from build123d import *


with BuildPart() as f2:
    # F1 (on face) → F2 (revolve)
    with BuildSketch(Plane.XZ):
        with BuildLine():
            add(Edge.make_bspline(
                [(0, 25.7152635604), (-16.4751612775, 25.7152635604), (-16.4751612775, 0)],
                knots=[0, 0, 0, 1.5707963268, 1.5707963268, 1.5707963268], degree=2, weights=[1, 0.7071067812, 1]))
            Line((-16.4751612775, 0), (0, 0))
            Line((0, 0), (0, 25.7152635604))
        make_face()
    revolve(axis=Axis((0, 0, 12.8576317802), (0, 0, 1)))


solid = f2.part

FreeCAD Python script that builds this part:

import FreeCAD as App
import Part
import Sketcher

V = App.Vector

doc = App.newDocument("Part")
body = doc.addObject("PartDesign::Body", "Body")

sketch1 = body.newObject("Sketcher::SketchObject", "Sketch")
sketch1.AttachmentSupport = (doc.getObject("XZ_Plane"), [""])
sketch1.MapMode = "FlatFace"
sketch1.addGeometry([
    Part.BSplineCurve([V(0, 25.715264, 0), V(-16.475161, 25.715264, 0), V(-16.475161, 0, 0)], [3, 3], [0, 1.570796327], False, 2, [1, 0.707106781, 1], False),
    Part.LineSegment(V(-16.475161, 0, 0), V(0, 0, 0)),
    Part.LineSegment(V(0, 0, 0), V(0, 25.715264, 0)),
], False)
sketch1.addConstraint([
    Sketcher.Constraint("Block", 0),
    Sketcher.Constraint("Coincident", 0, 2, 1, 1),
    Sketcher.Constraint("Coincident", 1, 2, 2, 1),
    Sketcher.Constraint("Coincident", 2, 2, 0, 1),
    Sketcher.Constraint("Horizontal", 1),
    Sketcher.Constraint("Vertical", 2),
])
revolution = body.newObject("PartDesign::Revolution", "Revolution")
revolution.Profile = sketch1
revolution.ReferenceAxis = (sketch1, ["V_Axis"])
revolution.Angle = 360

doc.recompute()
